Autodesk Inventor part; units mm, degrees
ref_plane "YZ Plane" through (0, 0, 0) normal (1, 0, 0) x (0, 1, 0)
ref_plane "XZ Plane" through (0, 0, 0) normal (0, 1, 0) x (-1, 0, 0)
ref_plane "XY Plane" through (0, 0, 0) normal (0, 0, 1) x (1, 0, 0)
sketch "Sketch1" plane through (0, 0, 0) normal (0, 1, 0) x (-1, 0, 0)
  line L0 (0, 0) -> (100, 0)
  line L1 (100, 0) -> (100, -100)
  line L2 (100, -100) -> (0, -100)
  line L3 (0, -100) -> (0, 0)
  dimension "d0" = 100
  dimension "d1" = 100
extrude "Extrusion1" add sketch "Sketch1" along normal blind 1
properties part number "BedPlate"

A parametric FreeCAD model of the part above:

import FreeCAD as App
import Part
import Sketcher

V = App.Vector

doc = App.newDocument("Part")
body = doc.addObject("PartDesign::Body", "Body")

sketch1 = body.newObject("Sketcher::SketchObject", "Sketch")
sketch1.AttachmentSupport = (doc.getObject("XZ_Plane"), [""])
sketch1.MapMode = "FlatFace"
sketch1.addGeometry(Part.LineSegment(V(-100, 0, 0), V(0, 0, 0)), False)
sketch1.addGeometry(Part.LineSegment(V(0, 0, 0), V(0, -100, 0)), False)
sketch1.addGeometry(Part.LineSegment(V(0, -100, 0), V(-100, -100, 0)), False)
sketch1.addGeometry(Part.LineSegment(V(-100, -100, 0), V(-100, 0, 0)), False)
sketch1.addConstraint(Sketcher.Constraint("Coincident", 0, 2, 1, 1))
sketch1.addConstraint(Sketcher.Constraint("Coincident", 1, 2, 2, 1))
sketch1.addConstraint(Sketcher.Constraint("Coincident", 2, 2, 3, 1))
sketch1.addConstraint(Sketcher.Constraint("Coincident", 3, 2, 0, 1))
sketch1.addConstraint(Sketcher.Constraint("Horizontal", 0))
sketch1.addConstraint(Sketcher.Constraint("Vertical", 1))
sketch1.addConstraint(Sketcher.Constraint("Horizontal", 2))
sketch1.addConstraint(Sketcher.Constraint("Vertical", 3))
sketch1.addConstraint(Sketcher.Constraint("Coincident", 0, 2, -1, 1))
sketch1.addConstraint(Sketcher.Constraint("Equal", 2, 1))
sketch1.addConstraint(Sketcher.Constraint("DistanceX", 0, 1, 0, 2, 100.0))
pad1 = body.newObject("PartDesign::Pad", "Pad")
pad1.Profile = sketch1
pad1.Length = 1
pad1.Reversed = True

doc.recompute()
